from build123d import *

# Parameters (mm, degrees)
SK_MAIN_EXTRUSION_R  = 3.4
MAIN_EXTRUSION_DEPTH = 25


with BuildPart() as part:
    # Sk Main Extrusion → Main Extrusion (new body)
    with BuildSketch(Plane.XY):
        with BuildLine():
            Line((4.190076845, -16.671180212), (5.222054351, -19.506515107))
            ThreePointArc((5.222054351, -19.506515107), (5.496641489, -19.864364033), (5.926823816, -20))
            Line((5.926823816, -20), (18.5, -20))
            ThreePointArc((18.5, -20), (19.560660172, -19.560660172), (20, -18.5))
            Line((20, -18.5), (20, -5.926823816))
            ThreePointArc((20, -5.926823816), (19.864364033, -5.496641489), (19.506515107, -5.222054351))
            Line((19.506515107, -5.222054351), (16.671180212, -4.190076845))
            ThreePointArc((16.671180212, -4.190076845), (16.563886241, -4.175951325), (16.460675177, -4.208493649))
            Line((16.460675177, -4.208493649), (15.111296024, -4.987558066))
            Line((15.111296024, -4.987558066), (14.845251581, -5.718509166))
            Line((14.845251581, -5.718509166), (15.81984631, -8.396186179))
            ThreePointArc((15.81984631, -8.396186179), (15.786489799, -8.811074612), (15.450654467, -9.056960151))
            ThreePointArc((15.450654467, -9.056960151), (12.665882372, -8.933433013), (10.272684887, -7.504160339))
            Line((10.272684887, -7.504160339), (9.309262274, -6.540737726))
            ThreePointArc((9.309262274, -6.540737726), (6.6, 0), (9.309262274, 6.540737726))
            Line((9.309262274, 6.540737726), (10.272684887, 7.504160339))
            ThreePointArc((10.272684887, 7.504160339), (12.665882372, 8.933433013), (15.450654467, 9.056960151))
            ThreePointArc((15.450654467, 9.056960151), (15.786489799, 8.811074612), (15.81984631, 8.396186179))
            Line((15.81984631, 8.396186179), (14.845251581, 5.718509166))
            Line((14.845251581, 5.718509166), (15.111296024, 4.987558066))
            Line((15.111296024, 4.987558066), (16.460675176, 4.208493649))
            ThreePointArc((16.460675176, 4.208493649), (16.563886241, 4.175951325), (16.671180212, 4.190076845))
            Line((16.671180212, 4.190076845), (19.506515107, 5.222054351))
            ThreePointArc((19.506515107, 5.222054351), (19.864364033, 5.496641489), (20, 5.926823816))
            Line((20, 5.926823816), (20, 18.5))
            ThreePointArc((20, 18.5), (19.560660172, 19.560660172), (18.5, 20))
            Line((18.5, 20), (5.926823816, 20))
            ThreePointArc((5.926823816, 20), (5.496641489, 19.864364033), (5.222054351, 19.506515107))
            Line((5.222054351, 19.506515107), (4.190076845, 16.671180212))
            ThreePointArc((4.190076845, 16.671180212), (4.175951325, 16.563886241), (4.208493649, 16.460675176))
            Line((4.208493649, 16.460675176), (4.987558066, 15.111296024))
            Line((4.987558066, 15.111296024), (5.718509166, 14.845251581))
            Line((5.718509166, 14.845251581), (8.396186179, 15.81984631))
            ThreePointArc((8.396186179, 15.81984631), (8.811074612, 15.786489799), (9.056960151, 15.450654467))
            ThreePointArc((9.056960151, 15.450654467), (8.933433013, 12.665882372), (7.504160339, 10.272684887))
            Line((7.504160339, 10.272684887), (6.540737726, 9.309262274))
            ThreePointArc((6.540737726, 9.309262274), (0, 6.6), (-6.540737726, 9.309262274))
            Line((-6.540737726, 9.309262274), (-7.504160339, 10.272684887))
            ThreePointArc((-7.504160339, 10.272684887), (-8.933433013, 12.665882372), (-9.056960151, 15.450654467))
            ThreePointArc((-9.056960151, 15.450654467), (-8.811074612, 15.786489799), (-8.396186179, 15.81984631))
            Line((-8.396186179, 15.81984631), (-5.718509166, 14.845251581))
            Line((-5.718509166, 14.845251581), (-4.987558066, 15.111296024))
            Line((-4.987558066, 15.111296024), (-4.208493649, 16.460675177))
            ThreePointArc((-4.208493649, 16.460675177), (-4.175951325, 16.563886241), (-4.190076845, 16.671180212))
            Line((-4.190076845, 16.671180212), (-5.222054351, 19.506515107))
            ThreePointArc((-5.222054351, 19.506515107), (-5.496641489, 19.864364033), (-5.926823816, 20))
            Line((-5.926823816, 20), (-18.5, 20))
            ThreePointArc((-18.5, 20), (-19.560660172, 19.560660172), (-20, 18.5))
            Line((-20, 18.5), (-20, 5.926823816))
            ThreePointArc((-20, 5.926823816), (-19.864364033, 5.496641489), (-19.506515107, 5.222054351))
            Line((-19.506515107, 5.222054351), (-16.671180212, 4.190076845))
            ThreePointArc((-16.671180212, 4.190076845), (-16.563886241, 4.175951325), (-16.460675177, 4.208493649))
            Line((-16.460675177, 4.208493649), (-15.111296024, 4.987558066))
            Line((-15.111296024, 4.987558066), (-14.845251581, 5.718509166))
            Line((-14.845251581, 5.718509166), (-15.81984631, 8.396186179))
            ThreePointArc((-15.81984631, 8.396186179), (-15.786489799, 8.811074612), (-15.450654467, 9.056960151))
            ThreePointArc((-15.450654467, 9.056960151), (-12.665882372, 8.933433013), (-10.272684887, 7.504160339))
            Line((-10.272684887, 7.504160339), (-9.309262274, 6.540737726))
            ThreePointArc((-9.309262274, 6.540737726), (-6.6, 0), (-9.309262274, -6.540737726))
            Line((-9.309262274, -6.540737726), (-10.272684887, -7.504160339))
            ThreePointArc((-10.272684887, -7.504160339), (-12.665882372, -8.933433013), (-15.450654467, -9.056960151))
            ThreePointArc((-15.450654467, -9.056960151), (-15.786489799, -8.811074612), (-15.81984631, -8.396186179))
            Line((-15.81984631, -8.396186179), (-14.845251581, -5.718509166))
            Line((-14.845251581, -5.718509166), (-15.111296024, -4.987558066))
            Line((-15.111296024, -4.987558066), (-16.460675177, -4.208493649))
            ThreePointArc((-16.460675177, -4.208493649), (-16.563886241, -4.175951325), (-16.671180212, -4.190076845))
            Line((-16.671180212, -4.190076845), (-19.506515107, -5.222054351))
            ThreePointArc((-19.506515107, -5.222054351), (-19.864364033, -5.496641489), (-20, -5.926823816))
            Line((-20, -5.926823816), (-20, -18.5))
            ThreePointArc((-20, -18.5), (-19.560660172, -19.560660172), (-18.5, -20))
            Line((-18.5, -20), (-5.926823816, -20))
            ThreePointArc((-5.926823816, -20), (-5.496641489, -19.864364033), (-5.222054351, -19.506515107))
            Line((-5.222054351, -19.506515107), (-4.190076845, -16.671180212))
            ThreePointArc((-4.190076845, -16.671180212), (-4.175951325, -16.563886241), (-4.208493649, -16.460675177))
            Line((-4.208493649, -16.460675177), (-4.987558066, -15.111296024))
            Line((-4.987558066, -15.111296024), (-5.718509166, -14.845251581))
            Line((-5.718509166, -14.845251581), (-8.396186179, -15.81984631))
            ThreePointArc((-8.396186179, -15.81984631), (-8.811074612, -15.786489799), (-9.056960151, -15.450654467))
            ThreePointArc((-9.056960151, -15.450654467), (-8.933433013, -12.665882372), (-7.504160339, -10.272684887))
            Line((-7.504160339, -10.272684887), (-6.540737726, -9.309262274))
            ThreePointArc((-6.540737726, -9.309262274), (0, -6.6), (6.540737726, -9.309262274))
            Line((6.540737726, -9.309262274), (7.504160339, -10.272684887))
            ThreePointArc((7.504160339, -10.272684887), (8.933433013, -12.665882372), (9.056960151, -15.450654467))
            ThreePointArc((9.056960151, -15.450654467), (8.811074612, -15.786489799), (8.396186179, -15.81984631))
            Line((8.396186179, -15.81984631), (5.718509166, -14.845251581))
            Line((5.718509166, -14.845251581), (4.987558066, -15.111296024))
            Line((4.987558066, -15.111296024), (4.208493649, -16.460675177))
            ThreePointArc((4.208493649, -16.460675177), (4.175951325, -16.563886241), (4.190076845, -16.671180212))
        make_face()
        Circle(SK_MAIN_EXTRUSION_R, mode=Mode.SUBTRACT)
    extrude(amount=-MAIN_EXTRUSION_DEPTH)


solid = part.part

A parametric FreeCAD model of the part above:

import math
import FreeCAD as App
import Part
import Sketcher
Q = App.Units.Quantity

doc = App.newDocument("Part")
body = doc.addObject("PartDesign::Body", "Body")

sketch1 = body.newObject("Sketcher::SketchObject", "Sketch")
sketch1.AttachmentSupport = (doc.getObject("XY_Plane"), [""])
sketch1.MapMode = "FlatFace"
sketch1.addGeometry([
    Part.LineSegment(App.Vector(4.19, -16.67, 0), App.Vector(5.22, -19.51, 0)),
    Part.ArcOfCircle(Part.Circle(App.Vector(5.93, -19.25, 0), App.Vector(0, 0, 1), 0.75), math.radians(-160), math.radians(-90)),
    Part.LineSegment(App.Vector(5.93, -20, 0), App.Vector(18.5, -20, 0)),
    Part.ArcOfCircle(Part.Circle(App.Vector(18.5, -18.5, 0), App.Vector(0, 0, 1), 1.5), math.radians(-90), math.radians(0)),
    Part.LineSegment(App.Vector(20, -18.5, 0), App.Vector(20, -5.93, 0)),
    Part.ArcOfCircle(Part.Circle(App.Vector(19.25, -5.93, 0), App.Vector(0, 0, 1), 0.75), math.radians(0), math.radians(70)),
    Part.LineSegment(App.Vector(19.51, -5.22, 0), App.Vector(16.67, -4.19, 0)),
    Part.ArcOfCircle(Part.Circle(App.Vector(16.59, -4.42, 0), App.Vector(0, 0, 1), 0.25), math.radians(70), math.radians(120)),
    Part.LineSegment(App.Vector(16.46, -4.21, 0), App.Vector(15.11, -4.99, 0)),
    Part.LineSegment(App.Vector(15.11, -4.99, 0), App.Vector(14.85, -5.72, 0)),
    Part.LineSegment(App.Vector(14.85, -5.72, 0), App.Vector(15.82, -8.4, 0)),
    Part.ArcOfCircle(Part.Circle(App.Vector(15.35, -8.57, 0), App.Vector(0, 0, 1), 0.5), math.radians(-78), math.radians(20)),
    Part.ArcOfCircle(Part.Circle(App.Vector(14.3, -3.47, 0), App.Vector(0, 0, 1), 5.7), math.radians(-135), math.radians(-78)),
    Part.LineSegment(App.Vector(10.27, -7.5, 0), App.Vector(9.31, -6.54, 0)),
    Part.ArcOfCircle(Part.Circle(App.Vector(15.85, 0, 0), App.Vector(0, 0, 1), 9.25), math.radians(135), math.radians(225)),
    Part.LineSegment(App.Vector(9.31, 6.54, 0), App.Vector(10.27, 7.5, 0)),
    Part.ArcOfCircle(Part.Circle(App.Vector(14.3, 3.47, 0), App.Vector(0, 0, 1), 5.7), math.radians(78), math.radians(135)),
    Part.ArcOfCircle(Part.Circle(App.Vector(15.35, 8.57, 0), App.Vector(0, 0, 1), 0.5), math.radians(-20), math.radians(78)),
    Part.LineSegment(App.Vector(15.82, 8.4, 0), App.Vector(14.85, 5.72, 0)),
    Part.LineSegment(App.Vector(14.85, 5.72, 0), App.Vector(15.11, 4.99, 0)),
    Part.LineSegment(App.Vector(15.11, 4.99, 0), App.Vector(16.46, 4.21, 0)),
    Part.ArcOfCircle(Part.Circle(App.Vector(16.59, 4.42, 0), App.Vector(0, 0, 1), 0.25), math.radians(-120), math.radians(-70)),
    Part.LineSegment(App.Vector(16.67, 4.19, 0), App.Vector(19.51, 5.22, 0)),
    Part.ArcOfCircle(Part.Circle(App.Vector(19.25, 5.93, 0), App.Vector(0, 0, 1), 0.75), math.radians(-70), math.radians(0)),
    Part.LineSegment(App.Vector(20, 5.93, 0), App.Vector(20, 18.5, 0)),
    Part.ArcOfCircle(Part.Circle(App.Vector(18.5, 18.5, 0), App.Vector(0, 0, 1), 1.5), math.radians(0), math.radians(90)),
    Part.LineSegment(App.Vector(18.5, 20, 0), App.Vector(5.93, 20, 0)),
    Part.ArcOfCircle(Part.Circle(App.Vector(5.93, 19.25, 0), App.Vector(0, 0, 1), 0.75), math.radians(90), math.radians(160)),
    Part.LineSegment(App.Vector(5.22, 19.51, 0), App.Vector(4.19, 16.67, 0)),
    Part.ArcOfCircle(Part.Circle(App.Vector(4.42, 16.59, 0), App.Vector(0, 0, 1), 0.25), math.radians(160), math.radians(210)),
    Part.LineSegment(App.Vector(4.21, 16.46, 0), App.Vector(4.99, 15.11, 0)),
    Part.LineSegment(App.Vector(4.99, 15.11, 0), App.Vector(5.72, 14.85, 0)),
    Part.LineSegment(App.Vector(5.72, 14.85, 0), App.Vector(8.4, 15.82, 0)),
    Part.ArcOfCircle(Part.Circle(App.Vector(8.57, 15.35, 0), App.Vector(0, 0, 1), 0.5), math.radians(12), math.radians(110)),
    Part.ArcOfCircle(Part.Circle(App.Vector(3.47, 14.3, 0), App.Vector(0, 0, 1), 5.7), math.radians(-45), math.radians(12)),
    Part.LineSegment(App.Vector(7.5, 10.27, 0), App.Vector(6.54, 9.31, 0)),
    Part.ArcOfCircle(Part.Circle(App.Vector(0, 15.85, 0), App.Vector(0, 0, 1), 9.25), math.radians(-135), math.radians(-45)),
    Part.LineSegment(App.Vector(-6.54, 9.31, 0), App.Vector(-7.5, 10.27, 0)),
    Part.ArcOfCircle(Part.Circle(App.Vector(-3.47, 14.3, 0), App.Vector(0, 0, 1), 5.7), math.radians(168), math.radians(225)),
    Part.ArcOfCircle(Part.Circle(App.Vector(-8.57, 15.35, 0), App.Vector(0, 0, 1), 0.5), math.radians(70), math.radians(168)),
    Part.LineSegment(App.Vector(-8.4, 15.82, 0), App.Vector(-5.72, 14.85, 0)),
    Part.LineSegment(App.Vector(-5.72, 14.85, 0), App.Vector(-4.99, 15.11, 0)),
    Part.LineSegment(App.Vector(-4.99, 15.11, 0), App.Vector(-4.21, 16.46, 0)),
    Part.ArcOfCircle(Part.Circle(App.Vector(-4.42, 16.59, 0), App.Vector(0, 0, 1), 0.25), math.radians(-30), math.radians(20)),
    Part.LineSegment(App.Vector(-4.19, 16.67, 0), App.Vector(-5.22, 19.51, 0)),
    Part.ArcOfCircle(Part.Circle(App.Vector(-5.93, 19.25, 0), App.Vector(0, 0, 1), 0.75), math.radians(20), math.radians(90)),
    Part.LineSegment(App.Vector(-5.93, 20, 0), App.Vector(-18.5, 20, 0)),
    Part.ArcOfCircle(Part.Circle(App.Vector(-18.5, 18.5, 0), App.Vector(0, 0, 1), 1.5), math.radians(90), math.radians(180)),
    Part.LineSegment(App.Vector(-20, 18.5, 0), App.Vector(-20, 5.93, 0)),
    Part.ArcOfCircle(Part.Circle(App.Vector(-19.25, 5.93, 0), App.Vector(0, 0, 1), 0.75), math.radians(180), math.radians(250)),
    Part.LineSegment(App.Vector(-19.51, 5.22, 0), App.Vector(-16.67, 4.19, 0)),
    Part.ArcOfCircle(Part.Circle(App.Vector(-16.59, 4.42, 0), App.Vector(0, 0, 1), 0.25), math.radians(-110), math.radians(-60)),
    Part.LineSegment(App.Vector(-16.46, 4.21, 0), App.Vector(-15.11, 4.99, 0)),
    Part.LineSegment(App.Vector(-15.11, 4.99, 0), App.Vector(-14.85, 5.72, 0)),
    Part.LineSegment(App.Vector(-14.85, 5.72, 0), App.Vector(-15.82, 8.4, 0)),
    Part.ArcOfCircle(Part.Circle(App.Vector(-15.35, 8.57, 0), App.Vector(0, 0, 1), 0.5), math.radians(102), math.radians(200)),
    Part.ArcOfCircle(Part.Circle(App.Vector(-14.3, 3.47, 0), App.Vector(0, 0, 1), 5.7), math.radians(45), math.radians(102)),
    Part.LineSegment(App.Vector(-10.27, 7.5, 0), App.Vector(-9.31, 6.54, 0)),
    Part.ArcOfCircle(Part.Circle(App.Vector(-15.85, 0, 0), App.Vector(0, 0, 1), 9.25), math.radians(-45), math.radians(45)),
    Part.LineSegment(App.Vector(-9.31, -6.54, 0), App.Vector(-10.27, -7.5, 0)),
    Part.ArcOfCircle(Part.Circle(App.Vector(-14.3, -3.47, 0), App.Vector(0, 0, 1), 5.7), math.radians(-102), math.radians(-45)),
    Part.ArcOfCircle(Part.Circle(App.Vector(-15.35, -8.57, 0), App.Vector(0, 0, 1), 0.5), math.radians(160), math.radians(258)),
    Part.LineSegment(App.Vector(-15.82, -8.4, 0), App.Vector(-14.85, -5.72, 0)),
    Part.LineSegment(App.Vector(-14.85, -5.72, 0), App.Vector(-15.11, -4.99, 0)),
    Part.LineSegment(App.Vector(-15.11, -4.99, 0), App.Vector(-16.46, -4.21, 0)),
    Part.ArcOfCircle(Part.Circle(App.Vector(-16.59, -4.42, 0), App.Vector(0, 0, 1), 0.25), math.radians(60), math.radians(110)),
    Part.LineSegment(App.Vector(-16.67, -4.19, 0), App.Vector(-19.51, -5.22, 0)),
    Part.ArcOfCircle(Part.Circle(App.Vector(-19.25, -5.93, 0), App.Vector(0, 0, 1), 0.75), math.radians(110), math.radians(180)),
    Part.LineSegment(App.Vector(-20, -5.93, 0), App.Vector(-20, -18.5, 0)),
    Part.ArcOfCircle(Part.Circle(App.Vector(-18.5, -18.5, 0), App.Vector(0, 0, 1), 1.5), math.radians(180), math.radians(270)),
    Part.LineSegment(App.Vector(-18.5, -20, 0), App.Vector(-5.93, -20, 0)),
    Part.ArcOfCircle(Part.Circle(App.Vector(-5.93, -19.25, 0), App.Vector(0, 0, 1), 0.75), math.radians(-90), math.radians(-20)),
    Part.LineSegment(App.Vector(-5.22, -19.51, 0), App.Vector(-4.19, -16.67, 0)),
    Part.ArcOfCircle(Part.Circle(App.Vector(-4.42, -16.59, 0), App.Vector(0, 0, 1), 0.25), math.radians(-20), math.radians(30)),
    Part.LineSegment(App.Vector(-4.21, -16.46, 0), App.Vector(-4.99, -15.11, 0)),
    Part.LineSegment(App.Vector(-4.99, -15.11, 0), App.Vector(-5.72, -14.85, 0)),
    Part.LineSegment(App.Vector(-5.72, -14.85, 0), App.Vector(-8.4, -15.82, 0)),
    Part.ArcOfCircle(Part.Circle(App.Vector(-8.57, -15.35, 0), App.Vector(0, 0, 1), 0.5), math.radians(-168), math.radians(-70)),
    Part.ArcOfCircle(Part.Circle(App.Vector(-3.47, -14.3, 0), App.Vector(0, 0, 1), 5.7), math.radians(135), math.radians(192)),
    Part.LineSegment(App.Vector(-7.5, -10.27, 0), App.Vector(-6.54, -9.31, 0)),
    Part.ArcOfCircle(Part.Circle(App.Vector(0, -15.85, 0), App.Vector(0, 0, 1), 9.25), math.radians(45), math.radians(135)),
    Part.LineSegment(App.Vector(6.54, -9.31, 0), App.Vector(7.5, -10.27, 0)),
    Part.ArcOfCircle(Part.Circle(App.Vector(3.47, -14.3, 0), App.Vector(0, 0, 1), 5.7), math.radians(-12), math.radians(45)),
    Part.ArcOfCircle(Part.Circle(App.Vector(8.57, -15.35, 0), App.Vector(0, 0, 1), 0.5), math.radians(-110), math.radians(-12)),
    Part.LineSegment(App.Vector(8.4, -15.82, 0), App.Vector(5.72, -14.85, 0)),
    Part.LineSegment(App.Vector(5.72, -14.85, 0), App.Vector(4.99, -15.11, 0)),
    Part.LineSegment(App.Vector(4.99, -15.11, 0), App.Vector(4.21, -16.46, 0)),
    Part.ArcOfCircle(Part.Circle(App.Vector(4.42, -16.59, 0), App.Vector(0, 0, 1), 0.25), math.radians(150), math.radians(200)),
    Part.Circle(App.Vector(0, 0, 0), App.Vector(0, 0, 1), 3.4),
], False)
sketch1.addConstraint([
    Sketcher.Constraint("Tangent", 0, 2, 1, 1),
    Sketcher.Constraint("Tangent", 1, 2, 2, 1),
    Sketcher.Constraint("Tangent", 2, 2, 3, 1),
    Sketcher.Constraint("Tangent", 3, 2, 4, 1),
    Sketcher.Constraint("Tangent", 4, 2, 5, 1),
    Sketcher.Constraint("Tangent", 5, 2, 6, 1),
    Sketcher.Constraint("Tangent", 6, 2, 7, 1),
    Sketcher.Constraint("Tangent", 7, 2, 8, 1),
    Sketcher.Constraint("Coincident", 8, 2, 9, 1),
    Sketcher.Constraint("Coincident", 9, 2, 10, 1),
    Sketcher.Constraint("Tangent", 10, 2, 11, 2),
    Sketcher.Constraint("Tangent", 11, 1, 12, 2),
    Sketcher.Constraint("Tangent", 12, 1, 13, 1),
    Sketcher.Constraint("Tangent", 13, 2, 14, 2),
    Sketcher.Constraint("Tangent", 14, 1, 15, 1),
    Sketcher.Constraint("Tangent", 15, 2, 16, 2),
    Sketcher.Constraint("Tangent", 16, 1, 17, 2),
    Sketcher.Constraint("Tangent", 17, 1, 18, 1),
    Sketcher.Constraint("Coincident", 18, 2, 19, 1),
    Sketcher.Constraint("Coincident", 19, 2, 20, 1),
    Sketcher.Constraint("Tangent", 20, 2, 21, 1),
    Sketcher.Constraint("Tangent", 21, 2, 22, 1),
    Sketcher.Constraint("Tangent", 22, 2, 23, 1),
    Sketcher.Constraint("Tangent", 23, 2, 24, 1),
    Sketcher.Constraint("Tangent", 24, 2, 25, 1),
    Sketcher.Constraint("Tangent", 25, 2, 26, 1),
    Sketcher.Constraint("Tangent", 26, 2, 27, 1),
    Sketcher.Constraint("Tangent", 27, 2, 28, 1),
    Sketcher.Constraint("Tangent", 28, 2, 29, 1),
    Sketcher.Constraint("Tangent", 29, 2, 30, 1),
    Sketcher.Constraint("Coincident", 30, 2, 31, 1),
    Sketcher.Constraint("Coincident", 31, 2, 32, 1),
    Sketcher.Constraint("Tangent", 32, 2, 33, 2),
    Sketcher.Constraint("Tangent", 33, 1, 34, 2),
    Sketcher.Constraint("Tangent", 34, 1, 35, 1),
    Sketcher.Constraint("Tangent", 35, 2, 36, 2),
    Sketcher.Constraint("Tangent", 36, 1, 37, 1),
    Sketcher.Constraint("Tangent", 37, 2, 38, 2),
    Sketcher.Constraint("Tangent", 38, 1, 39, 2),
    Sketcher.Constraint("Tangent", 39, 1, 40, 1),
    Sketcher.Constraint("Coincident", 40, 2, 41, 1),
    Sketcher.Constraint("Coincident", 41, 2, 42, 1),
    Sketcher.Constraint("Tangent", 42, 2, 43, 1),
    Sketcher.Constraint("Tangent", 43, 2, 44, 1),
    Sketcher.Constraint("Tangent", 44, 2, 45, 1),
    Sketcher.Constraint("Tangent", 45, 2, 46, 1),
    Sketcher.Constraint("Tangent", 46, 2, 47, 1),
    Sketcher.Constraint("Tangent", 47, 2, 48, 1),
    Sketcher.Constraint("Tangent", 48, 2, 49, 1),
    Sketcher.Constraint("Tangent", 49, 2, 50, 1),
    Sketcher.Constraint("Tangent", 50, 2, 51, 1),
    Sketcher.Constraint("Tangent", 51, 2, 52, 1),
    Sketcher.Constraint("Coincident", 52, 2, 53, 1),
    Sketcher.Constraint("Coincident", 53, 2, 54, 1),
    Sketcher.Constraint("Tangent", 54, 2, 55, 2),
    Sketcher.Constraint("Tangent", 55, 1, 56, 2),
    Sketcher.Constraint("Tangent", 56, 1, 57, 1),
    Sketcher.Constraint("Tangent", 57, 2, 58, 2),
    Sketcher.Constraint("Tangent", 58, 1, 59, 1),
    Sketcher.Constraint("Tangent", 59, 2, 60, 2),
    Sketcher.Constraint("Tangent", 60, 1, 61, 2),
    Sketcher.Constraint("Tangent", 61, 1, 62, 1),
    Sketcher.Constraint("Coincident", 62, 2, 63, 1),
    Sketcher.Constraint("Coincident", 63, 2, 64, 1),
    Sketcher.Constraint("Tangent", 64, 2, 65, 1),
    Sketcher.Constraint("Tangent", 65, 2, 66, 1),
    Sketcher.Constraint("Tangent", 66, 2, 67, 1),
    Sketcher.Constraint("Tangent", 67, 2, 68, 1),
    Sketcher.Constraint("Tangent", 68, 2, 69, 1),
    Sketcher.Constraint("Tangent", 69, 2, 70, 1),
    Sketcher.Constraint("Tangent", 70, 2, 71, 1),
    Sketcher.Constraint("Tangent", 71, 2, 72, 1),
    Sketcher.Constraint("Tangent", 72, 2, 73, 1),
    Sketcher.Constraint("Tangent", 73, 2, 74, 1),
    Sketcher.Constraint("Coincident", 74, 2, 75, 1),
    Sketcher.Constraint("Coincident", 75, 2, 76, 1),
    Sketcher.Constraint("Tangent", 76, 2, 77, 2),
    Sketcher.Constraint("Tangent", 77, 1, 78, 2),
    Sketcher.Constraint("Tangent", 78, 1, 79, 1),
    Sketcher.Constraint("Tangent", 79, 2, 80, 2),
    Sketcher.Constraint("Tangent", 80, 1, 81, 1),
    Sketcher.Constraint("Tangent", 81, 2, 82, 2),
    Sketcher.Constraint("Tangent", 82, 1, 83, 2),
    Sketcher.Constraint("Tangent", 83, 1, 84, 1),
    Sketcher.Constraint("Coincident", 84, 2, 85, 1),
    Sketcher.Constraint("Coincident", 85, 2, 86, 1),
    Sketcher.Constraint("Tangent", 86, 2, 87, 1),
    Sketcher.Constraint("Tangent", 87, 2, 0, 1),
    Sketcher.Constraint("Horizontal", 2),
    Sketcher.Constraint("Vertical", 4),
    Sketcher.Constraint("Vertical", 24),
    Sketcher.Constraint("Horizontal", 26),
    Sketcher.Constraint("Horizontal", 46),
    Sketcher.Constraint("Vertical", 48),
    Sketcher.Constraint("Vertical", 68),
    Sketcher.Constraint("Horizontal", 70),
    Sketcher.Constraint("Coincident", 88, 3, -1, 1),
    Sketcher.Constraint("Equal", 1, 5),
    Sketcher.Constraint("Equal", 12, 16),
    Sketcher.Constraint("Equal", 11, 17),
    Sketcher.Constraint("Equal", 7, 21),
    Sketcher.Constraint("Equal", 5, 23),
    Sketcher.Constraint("Equal", 3, 25),
    Sketcher.Constraint("Equal", 23, 27),
    Sketcher.Constraint("Equal", 21, 29),
    Sketcher.Constraint("Equal", 17, 33),
    Sketcher.Constraint("Equal", 16, 34),
    Sketcher.Constraint("Equal", 14, 36),
    Sketcher.Constraint("Equal", 34, 38),
    Sketcher.Constraint("Equal", 33, 39),
    Sketcher.Constraint("Equal", 29, 43),
    Sketcher.Constraint("Equal", 27, 45),
    Sketcher.Constraint("Equal", 25, 47),
    Sketcher.Constraint("Equal", 45, 49),
    Sketcher.Constraint("Equal", 43, 51),
    Sketcher.Constraint("Equal", 39, 55),
    Sketcher.Constraint("Equal", 38, 56),
    Sketcher.Constraint("Equal", 36, 58),
    Sketcher.Constraint("Equal", 56, 60),
    Sketcher.Constraint("Equal", 55, 61),
    Sketcher.Constraint("Equal", 51, 65),
    Sketcher.Constraint("Equal", 49, 67),
    Sketcher.Constraint("Equal", 47, 69),
    Sketcher.Constraint("Equal", 67, 71),
    Sketcher.Constraint("Equal", 65, 73),
    Sketcher.Constraint("Equal", 61, 77),
    Sketcher.Constraint("Equal", 60, 78),
    Sketcher.Constraint("Equal", 58, 80),
    Sketcher.Constraint("Equal", 78, 82),
    Sketcher.Constraint("Equal", 77, 83),
    Sketcher.Constraint("Equal", 73, 87),
    Sketcher.Constraint("Symmetric", 1, 3, 45, 3, -1, 1),
    Sketcher.Constraint("Symmetric", 5, 3, 49, 3, -1, 1),
    Sketcher.Constraint("Symmetric", 7, 3, 51, 3, -1, 1),
    Sketcher.Constraint("Symmetric", 11, 3, 55, 3, -1, 1),
    Sketcher.Constraint("Symmetric", 14, 3, 58, 3, -1, 1),
    Sketcher.Constraint("Symmetric", 16, 3, 60, 3, -1, 1),
    Sketcher.Constraint("Symmetric", 21, 3, 65, 3, -1, 1),
    Sketcher.Constraint("Symmetric", 23, 3, 67, 3, -1, 1),
    Sketcher.Constraint("Symmetric", 27, 3, 71, 3, -1, 1),
    Sketcher.Constraint("Symmetric", 29, 3, 73, 3, -1, 1),
    Sketcher.Constraint("Symmetric", 33, 3, 77, 3, -1, 1),
    Sketcher.Constraint("Symmetric", 36, 3, 80, 3, -1, 1),
    Sketcher.Constraint("Symmetric", 38, 3, 82, 3, -1, 1),
    Sketcher.Constraint("Symmetric", 43, 3, 87, 3, -1, 1),
    Sketcher.Constraint("Symmetric", 8, 2, 52, 2, -1, 1),
    Sketcher.Constraint("Symmetric", 9, 2, 53, 2, -1, 1),
    Sketcher.Constraint("Symmetric", 17, 1, 61, 1, -1, 1),
    Sketcher.Constraint("Symmetric", 19, 2, 63, 2, -1, 1),
    Sketcher.Constraint("Symmetric", 30, 2, 74, 2, -1, 1),
    Sketcher.Constraint("Symmetric", 31, 2, 75, 2, -1, 1),
    Sketcher.Constraint("Symmetric", 39, 1, 83, 1, -1, 1),
    Sketcher.Constraint("Symmetric", 41, 2, 85, 2, -1, 1),
    Sketcher.Constraint("Symmetric", 34, 3, 38, 3, -2),
    Sketcher.Constraint("Symmetric", 29, 3, 43, 3, -2),
    Sketcher.Constraint("Symmetric", 27, 3, 45, 3, -2),
    Sketcher.Constraint("Symmetric", 23, 3, 49, 3, -2),
    Sketcher.Constraint("Symmetric", 21, 3, 51, 3, -2),
    Sketcher.Constraint("Symmetric", 17, 3, 55, 3, -2),
    Sketcher.Constraint("Symmetric", 32, 2, 39, 1, -2),
    Sketcher.Constraint("Symmetric", 30, 2, 41, 2, -2),
    Sketcher.Constraint("Symmetric", 19, 2, 52, 2, -2),
    Sketcher.Constraint("Symmetric", 18, 2, 53, 2, -2),
    Sketcher.Constraint("Symmetric", 15, 2, 56, 1, -2),
    Sketcher.Constraint("Symmetric", 79, 2, 80, 1, -2),
    Sketcher.Constraint("Perpendicular", 6, 9),
    Sketcher.Constraint("Parallel", 0, 10),
    Sketcher.Constraint("Perpendicular", 13, 15),
    Sketcher.Constraint("Parallel", 9, 18),
    Sketcher.Constraint("Perpendicular", 8, 30),
    Sketcher.Constraint("Perpendicular", 28, 31),
    Sketcher.Constraint("Parallel", 22, 32),
    Sketcher.Constraint("Parallel", 15, 35),
    Sketcher.Constraint("Perpendicular", 35, 37),
    Sketcher.Constraint("Parallel", 32, 41),
    Sketcher.Constraint("Parallel", 54, 63),
    Sketcher.Constraint("Parallel", 76, 85),
    Sketcher.Constraint("Equal", 70, 4),
    Sketcher.Constraint("Equal", 0, 6),
    Sketcher.Constraint("Equal", 20, 30),
    Sketcher.Constraint("Equal", 19, 31),
    Sketcher.Constraint("Equal", 18, 32),
    Sketcher.Constraint("Equal", 15, 35),
    Sketcher.Constraint("Diameter", 88, Q("6.8 mm")),
    Sketcher.Constraint("Radius", 3, Q("1.5 mm")),
    Sketcher.Constraint("Radius", 11, Q("0.5 mm")),
    Sketcher.Constraint("Radius", 12, Q("5.7 mm")),
    Sketcher.Constraint("Angle", 0, Q("-70 deg")),
    Sketcher.Constraint("Angle", 8, Q("-150 deg")),
    Sketcher.Constraint("Radius", 1, Q("0.75 mm")),
    Sketcher.Constraint("Radius", 7, Q("0.25 mm")),
    Sketcher.Constraint("Radius", 14, Q("9.25 mm")),
    Sketcher.Constraint("DistanceY", 1, 2, -1, 1, Q("20 mm")),
    Sketcher.Constraint("DistanceX", -1, 1, 3, 2, Q("20 mm")),
    Sketcher.Constraint("DistanceX", -1, 1, 11, 3, Q("15.35 mm")),
    Sketcher.Constraint("DistanceX", -1, 1, 14, 3, Q("15.85 mm")),
    Sketcher.Constraint("DistanceY", 7, 3, -1, 1, Q("4.425 mm")),
    Sketcher.Constraint("Distance", 0, Q("3.0173 mm")),
    Sketcher.Constraint("Distance", 8, Q("1.558129 mm")),
    Sketcher.Constraint("Distance", 9, Q("0.777862 mm")),
])
pad1 = body.newObject("PartDesign::Pad", "Pad")
pad1.Profile = sketch1
pad1.Length = 25
pad1.Reversed = True

doc.recompute()
